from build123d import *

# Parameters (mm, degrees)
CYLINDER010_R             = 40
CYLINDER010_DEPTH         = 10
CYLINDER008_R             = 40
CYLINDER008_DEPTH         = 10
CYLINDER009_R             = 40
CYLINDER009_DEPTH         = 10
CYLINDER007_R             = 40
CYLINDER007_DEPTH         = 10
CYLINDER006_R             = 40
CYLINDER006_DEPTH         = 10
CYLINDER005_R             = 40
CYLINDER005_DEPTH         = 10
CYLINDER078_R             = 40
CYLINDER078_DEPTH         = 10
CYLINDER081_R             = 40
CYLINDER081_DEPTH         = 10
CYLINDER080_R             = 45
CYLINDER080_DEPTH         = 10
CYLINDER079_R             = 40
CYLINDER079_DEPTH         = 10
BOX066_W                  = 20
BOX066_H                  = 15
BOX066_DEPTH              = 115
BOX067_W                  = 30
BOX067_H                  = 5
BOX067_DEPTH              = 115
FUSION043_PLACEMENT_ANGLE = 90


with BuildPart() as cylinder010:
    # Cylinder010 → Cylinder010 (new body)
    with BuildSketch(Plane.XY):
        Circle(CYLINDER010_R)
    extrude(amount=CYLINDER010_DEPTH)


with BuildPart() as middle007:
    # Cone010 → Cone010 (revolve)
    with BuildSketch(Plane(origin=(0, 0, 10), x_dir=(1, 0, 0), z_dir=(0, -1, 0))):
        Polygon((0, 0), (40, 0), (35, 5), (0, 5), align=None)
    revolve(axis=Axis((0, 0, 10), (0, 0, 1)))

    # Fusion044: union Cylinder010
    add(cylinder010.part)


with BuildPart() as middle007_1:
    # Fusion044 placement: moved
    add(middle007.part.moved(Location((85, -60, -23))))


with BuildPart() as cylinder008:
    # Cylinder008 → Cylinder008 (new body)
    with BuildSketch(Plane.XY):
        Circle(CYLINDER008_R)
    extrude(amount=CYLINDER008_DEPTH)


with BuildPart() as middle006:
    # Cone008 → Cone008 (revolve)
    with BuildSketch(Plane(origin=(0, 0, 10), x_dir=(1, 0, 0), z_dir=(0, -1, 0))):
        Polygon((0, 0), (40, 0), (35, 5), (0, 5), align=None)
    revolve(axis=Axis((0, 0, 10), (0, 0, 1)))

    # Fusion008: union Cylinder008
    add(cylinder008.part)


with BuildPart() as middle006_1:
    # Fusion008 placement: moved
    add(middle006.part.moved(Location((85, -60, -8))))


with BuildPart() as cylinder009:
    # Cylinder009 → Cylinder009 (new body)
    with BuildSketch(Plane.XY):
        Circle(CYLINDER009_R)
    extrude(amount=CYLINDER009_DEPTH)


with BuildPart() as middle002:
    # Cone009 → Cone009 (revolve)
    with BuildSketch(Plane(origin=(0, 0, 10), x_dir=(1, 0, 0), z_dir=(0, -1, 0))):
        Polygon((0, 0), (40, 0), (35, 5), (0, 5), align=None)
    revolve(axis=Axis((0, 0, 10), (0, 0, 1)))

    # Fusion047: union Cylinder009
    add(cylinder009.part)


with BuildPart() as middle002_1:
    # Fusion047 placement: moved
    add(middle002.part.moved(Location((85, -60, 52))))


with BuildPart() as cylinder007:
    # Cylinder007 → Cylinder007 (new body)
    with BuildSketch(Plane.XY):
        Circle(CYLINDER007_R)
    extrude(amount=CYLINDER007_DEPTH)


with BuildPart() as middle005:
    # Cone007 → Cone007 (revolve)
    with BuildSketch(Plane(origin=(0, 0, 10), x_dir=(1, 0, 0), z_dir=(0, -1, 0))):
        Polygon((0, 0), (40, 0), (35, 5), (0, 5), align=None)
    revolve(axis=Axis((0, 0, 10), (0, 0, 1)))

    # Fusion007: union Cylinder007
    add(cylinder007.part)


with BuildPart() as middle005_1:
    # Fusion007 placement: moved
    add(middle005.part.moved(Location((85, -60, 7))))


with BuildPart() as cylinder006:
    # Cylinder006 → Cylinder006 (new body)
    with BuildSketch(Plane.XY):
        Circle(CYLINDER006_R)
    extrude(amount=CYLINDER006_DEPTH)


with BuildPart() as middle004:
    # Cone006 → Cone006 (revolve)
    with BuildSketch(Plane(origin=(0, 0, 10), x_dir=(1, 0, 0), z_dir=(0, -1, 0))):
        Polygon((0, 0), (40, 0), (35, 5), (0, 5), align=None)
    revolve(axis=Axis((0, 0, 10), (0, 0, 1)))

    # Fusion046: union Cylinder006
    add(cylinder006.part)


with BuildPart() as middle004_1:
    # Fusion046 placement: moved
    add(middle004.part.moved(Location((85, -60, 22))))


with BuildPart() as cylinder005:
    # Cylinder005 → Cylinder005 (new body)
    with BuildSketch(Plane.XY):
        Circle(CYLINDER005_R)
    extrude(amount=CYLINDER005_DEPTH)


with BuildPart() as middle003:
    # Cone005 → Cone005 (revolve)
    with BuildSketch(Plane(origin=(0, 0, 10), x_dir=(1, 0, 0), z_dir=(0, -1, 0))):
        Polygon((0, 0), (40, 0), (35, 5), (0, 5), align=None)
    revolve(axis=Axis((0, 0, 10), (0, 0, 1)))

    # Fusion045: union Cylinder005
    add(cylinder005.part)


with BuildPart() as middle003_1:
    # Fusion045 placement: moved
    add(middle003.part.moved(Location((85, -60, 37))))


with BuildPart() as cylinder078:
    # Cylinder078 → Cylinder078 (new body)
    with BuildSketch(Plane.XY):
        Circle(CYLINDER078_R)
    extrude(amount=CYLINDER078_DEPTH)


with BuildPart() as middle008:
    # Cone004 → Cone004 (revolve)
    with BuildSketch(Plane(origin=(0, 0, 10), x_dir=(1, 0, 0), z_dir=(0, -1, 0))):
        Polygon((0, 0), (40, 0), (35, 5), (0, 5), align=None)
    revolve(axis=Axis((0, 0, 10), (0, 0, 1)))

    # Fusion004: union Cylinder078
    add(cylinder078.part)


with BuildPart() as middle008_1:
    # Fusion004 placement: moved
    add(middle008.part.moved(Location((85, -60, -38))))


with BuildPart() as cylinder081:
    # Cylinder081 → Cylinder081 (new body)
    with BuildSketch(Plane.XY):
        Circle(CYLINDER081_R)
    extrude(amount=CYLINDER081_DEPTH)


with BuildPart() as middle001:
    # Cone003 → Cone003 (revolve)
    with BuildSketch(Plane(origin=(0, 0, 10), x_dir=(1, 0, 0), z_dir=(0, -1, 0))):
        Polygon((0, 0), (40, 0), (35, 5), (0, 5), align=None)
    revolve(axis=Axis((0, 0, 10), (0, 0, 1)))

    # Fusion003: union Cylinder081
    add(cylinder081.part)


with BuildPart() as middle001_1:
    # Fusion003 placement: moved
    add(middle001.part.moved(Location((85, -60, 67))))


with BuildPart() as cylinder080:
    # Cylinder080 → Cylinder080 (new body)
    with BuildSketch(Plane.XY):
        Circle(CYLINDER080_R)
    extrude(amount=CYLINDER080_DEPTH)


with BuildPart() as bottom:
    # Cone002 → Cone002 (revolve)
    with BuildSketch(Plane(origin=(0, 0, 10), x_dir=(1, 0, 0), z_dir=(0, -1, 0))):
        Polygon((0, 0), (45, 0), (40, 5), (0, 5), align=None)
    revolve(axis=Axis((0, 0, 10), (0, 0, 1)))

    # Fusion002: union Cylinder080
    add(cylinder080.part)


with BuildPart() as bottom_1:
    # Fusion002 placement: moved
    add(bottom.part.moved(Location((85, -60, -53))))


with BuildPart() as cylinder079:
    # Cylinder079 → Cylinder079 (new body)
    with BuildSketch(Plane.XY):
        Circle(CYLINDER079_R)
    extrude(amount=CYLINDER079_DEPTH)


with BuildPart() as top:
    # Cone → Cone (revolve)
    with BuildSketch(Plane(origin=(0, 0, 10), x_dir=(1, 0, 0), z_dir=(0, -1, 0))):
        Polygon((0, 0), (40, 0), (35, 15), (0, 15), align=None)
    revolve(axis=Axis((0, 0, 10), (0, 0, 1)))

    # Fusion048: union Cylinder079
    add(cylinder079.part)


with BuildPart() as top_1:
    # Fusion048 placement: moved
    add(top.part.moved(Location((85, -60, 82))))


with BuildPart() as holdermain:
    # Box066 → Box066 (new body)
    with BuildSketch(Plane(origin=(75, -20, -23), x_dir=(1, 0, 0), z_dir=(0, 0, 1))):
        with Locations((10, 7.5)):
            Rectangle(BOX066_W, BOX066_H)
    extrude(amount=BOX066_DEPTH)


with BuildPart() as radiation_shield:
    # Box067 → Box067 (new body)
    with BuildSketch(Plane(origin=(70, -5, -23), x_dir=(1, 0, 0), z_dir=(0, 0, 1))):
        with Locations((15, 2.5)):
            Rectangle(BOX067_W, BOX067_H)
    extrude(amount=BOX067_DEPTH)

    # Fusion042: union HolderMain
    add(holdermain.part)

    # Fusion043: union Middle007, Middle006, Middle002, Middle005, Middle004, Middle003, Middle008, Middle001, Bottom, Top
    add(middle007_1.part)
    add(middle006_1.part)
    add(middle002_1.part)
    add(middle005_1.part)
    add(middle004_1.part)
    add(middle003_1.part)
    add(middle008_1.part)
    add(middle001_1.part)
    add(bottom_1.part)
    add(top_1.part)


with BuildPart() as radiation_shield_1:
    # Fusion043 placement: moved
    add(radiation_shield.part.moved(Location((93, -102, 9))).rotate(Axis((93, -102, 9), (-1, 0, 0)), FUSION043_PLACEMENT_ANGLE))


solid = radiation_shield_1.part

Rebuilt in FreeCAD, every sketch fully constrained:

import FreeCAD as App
import Part
import Sketcher


def add_polygon(sketch, points):
    """Adds a closed chain of lines whose ends are joined by coincident constraints."""
    first, n = sketch.GeometryCount, len(points)
    for a, b in zip(points, points[1:] + points[:1]):
        sketch.addGeometry(Part.LineSegment(App.Vector(*a, 0), App.Vector(*b, 0)), False)
    for i in range(n):
        sketch.addConstraint(Sketcher.Constraint("Coincident", first + i, 2, first + (i + 1) % n, 1))

doc = App.newDocument("Part")
body = doc.addObject("PartDesign::Body", "Body")

# Sketch on XY plane
sketch1 = doc.addObject("Sketcher::SketchObject", "Sketch")
body.addObject(sketch1)
sketch1.AttachmentSupport = (doc.XY_Plane, [""])
sketch1.MapMode = "FlatFace"
sketch1.addGeometry(Part.Circle(App.Vector(0, 0, 0), App.Vector(0, 0, 1), 40), False)
sketch1.addConstraint(Sketcher.Constraint("Coincident", 0, 3, -1, 1))
sketch1.addConstraint(Sketcher.Constraint("Diameter", 0, 80.0))
pad1 = doc.addObject("PartDesign::Pad", "Pad")
body.addObject(pad1)
pad1.Profile = sketch1
pad1.Length = 10
body2 = doc.addObject("PartDesign::Body", "Body001")

# Sketch on XZ plane
sketch2 = doc.addObject("Sketcher::SketchObject", "Sketch001")
body2.addObject(sketch2)
sketch2.AttachmentSupport = (doc.getObject("XZ_Plane001"), [""])
sketch2.MapMode = "FlatFace"
add_polygon(sketch2, [(0, 10), (40, 10), (35, 15), (0, 15)])  # lines 0-3
sketch2.addConstraint(Sketcher.Constraint("Horizontal", 0))
sketch2.addConstraint(Sketcher.Constraint("Horizontal", 2))
sketch2.addConstraint(Sketcher.Constraint("Vertical", 3))
sketch2.addConstraint(Sketcher.Constraint("PointOnObject", 2, 2, -2))
sketch2.addConstraint(Sketcher.Constraint("DistanceX", 0, 1, 0, 2, 40.0))
sketch2.addConstraint(Sketcher.Constraint("DistanceX", 2, 2, 2, 1, 35.0))
sketch2.addConstraint(Sketcher.Constraint("DistanceY", 3, 2, 3, 1, 5.0))
sketch2.addConstraint(Sketcher.Constraint("DistanceY", -1, 1, 0, 2, 10.0))
revolution = doc.addObject("PartDesign::Revolution", "Revolution")
body2.addObject(revolution)
revolution.Profile = sketch2
revolution.ReferenceAxis = (sketch2, ["V_Axis"])
revolution.Angle = 360
doc.recompute()

boolean = doc.addObject("PartDesign::Boolean", "Boolean")
body2.addObject(boolean)
boolean.Type = "Fuse"
boolean.addObjects([body])
body3 = doc.addObject("PartDesign::Body", "Body002")
doc.recompute()

body2.Placement = App.Placement(App.Vector(85, -60, -23), App.Rotation(App.Vector(0, 0, 1), 0))
boolean2 = doc.addObject("PartDesign::Boolean", "Boolean001")
body3.addObject(boolean2)
boolean2.Type = "Fuse"
boolean2.addObjects([body2])
body4 = doc.addObject("PartDesign::Body", "Body003")

# Sketch on XY plane
sketch3 = doc.addObject("Sketcher::SketchObject", "Sketch002")
body4.addObject(sketch3)
sketch3.AttachmentSupport = (doc.getObject("XY_Plane003"), [""])
sketch3.MapMode = "FlatFace"
sketch3.addGeometry(Part.Circle(App.Vector(0, 0, 0), App.Vector(0, 0, 1), 40), False)
sketch3.addConstraint(Sketcher.Constraint("Coincident", 0, 3, -1, 1))
sketch3.addConstraint(Sketcher.Constraint("Diameter", 0, 80.0))
pad2 = doc.addObject("PartDesign::Pad", "Pad001")
body4.addObject(pad2)
pad2.Profile = sketch3
pad2.Length = 10
body5 = doc.addObject("PartDesign::Body", "Body004")

# Sketch on XZ plane
sketch4 = doc.addObject("Sketcher::SketchObject", "Sketch003")
body5.addObject(sketch4)
sketch4.AttachmentSupport = (doc.getObject("XZ_Plane004"), [""])
sketch4.MapMode = "FlatFace"
add_polygon(sketch4, [(0, 10), (40, 10), (35, 15), (0, 15)])  # lines 0-3
sketch4.addConstraint(Sketcher.Constraint("Horizontal", 0))
sketch4.addConstraint(Sketcher.Constraint("Horizontal", 2))
sketch4.addConstraint(Sketcher.Constraint("Vertical", 3))
sketch4.addConstraint(Sketcher.Constraint("PointOnObject", 2, 2, -2))
sketch4.addConstraint(Sketcher.Constraint("DistanceX", 0, 1, 0, 2, 40.0))
sketch4.addConstraint(Sketcher.Constraint("DistanceX", 2, 2, 2, 1, 35.0))
sketch4.addConstraint(Sketcher.Constraint("DistanceY", 3, 2, 3, 1, 5.0))
sketch4.addConstraint(Sketcher.Constraint("DistanceY", -1, 1, 0, 2, 10.0))
revolution2 = doc.addObject("PartDesign::Revolution", "Revolution001")
body5.addObject(revolution2)
revolution2.Profile = sketch4
revolution2.ReferenceAxis = (sketch4, ["V_Axis"])
revolution2.Angle = 360
doc.recompute()

boolean3 = doc.addObject("PartDesign::Boolean", "Boolean002")
body5.addObject(boolean3)
boolean3.Type = "Fuse"
boolean3.addObjects([body4])
body6 = doc.addObject("PartDesign::Body", "Body005")
doc.recompute()

body5.Placement = App.Placement(App.Vector(85, -60, -8), App.Rotation(App.Vector(0, 0, 1), 0))
boolean4 = doc.addObject("PartDesign::Boolean", "Boolean003")
body6.addObject(boolean4)
boolean4.Type = "Fuse"
boolean4.addObjects([body5])
body7 = doc.addObject("PartDesign::Body", "Body006")

# Sketch on XY plane
sketch5 = doc.addObject("Sketcher::SketchObject", "Sketch004")
body7.addObject(sketch5)
sketch5.AttachmentSupport = (doc.getObject("XY_Plane006"), [""])
sketch5.MapMode = "FlatFace"
sketch5.addGeometry(Part.Circle(App.Vector(0, 0, 0), App.Vector(0, 0, 1), 40), False)
sketch5.addConstraint(Sketcher.Constraint("Coincident", 0, 3, -1, 1))
sketch5.addConstraint(Sketcher.Constraint("Diameter", 0, 80.0))
pad3 = doc.addObject("PartDesign::Pad", "Pad002")
body7.addObject(pad3)
pad3.Profile = sketch5
pad3.Length = 10
body8 = doc.addObject("PartDesign::Body", "Body007")

# Sketch on XZ plane
sketch6 = doc.addObject("Sketcher::SketchObject", "Sketch005")
body8.addObject(sketch6)
sketch6.AttachmentSupport = (doc.getObject("XZ_Plane007"), [""])
sketch6.MapMode = "FlatFace"
add_polygon(sketch6, [(0, 10), (40, 10), (35, 15), (0, 15)])  # lines 0-3
sketch6.addConstraint(Sketcher.Constraint("Horizontal", 0))
sketch6.addConstraint(Sketcher.Constraint("Horizontal", 2))
sketch6.addConstraint(Sketcher.Constraint("Vertical", 3))
sketch6.addConstraint(Sketcher.Constraint("PointOnObject", 2, 2, -2))
sketch6.addConstraint(Sketcher.Constraint("DistanceX", 0, 1, 0, 2, 40.0))
sketch6.addConstraint(Sketcher.Constraint("DistanceX", 2, 2, 2, 1, 35.0))
sketch6.addConstraint(Sketcher.Constraint("DistanceY", 3, 2, 3, 1, 5.0))
sketch6.addConstraint(Sketcher.Constraint("DistanceY", -1, 1, 0, 2, 10.0))
revolution3 = doc.addObject("PartDesign::Revolution", "Revolution002")
body8.addObject(revolution3)
revolution3.Profile = sketch6
revolution3.ReferenceAxis = (sketch6, ["V_Axis"])
revolution3.Angle = 360
doc.recompute()

boolean5 = doc.addObject("PartDesign::Boolean", "Boolean004")
body8.addObject(boolean5)
boolean5.Type = "Fuse"
boolean5.addObjects([body7])
body9 = doc.addObject("PartDesign::Body", "Body008")
doc.recompute()

body8.Placement = App.Placement(App.Vector(85, -60, 52), App.Rotation(App.Vector(0, 0, 1), 0))
boolean6 = doc.addObject("PartDesign::Boolean", "Boolean005")
body9.addObject(boolean6)
boolean6.Type = "Fuse"
boolean6.addObjects([body8])
body10 = doc.addObject("PartDesign::Body", "Body009")

# Sketch on XY plane
sketch7 = doc.addObject("Sketcher::SketchObject", "Sketch006")
body10.addObject(sketch7)
sketch7.AttachmentSupport = (doc.getObject("XY_Plane009"), [""])
sketch7.MapMode = "FlatFace"
sketch7.addGeometry(Part.Circle(App.Vector(0, 0, 0), App.Vector(0, 0, 1), 40), False)
sketch7.addConstraint(Sketcher.Constraint("Coincident", 0, 3, -1, 1))
sketch7.addConstraint(Sketcher.Constraint("Diameter", 0, 80.0))
pad4 = doc.addObject("PartDesign::Pad", "Pad003")
body10.addObject(pad4)
pad4.Profile = sketch7
pad4.Length = 10
body11 = doc.addObject("PartDesign::Body", "Body010")

# Sketch on XZ plane
sketch8 = doc.addObject("Sketcher::SketchObject", "Sketch007")
body11.addObject(sketch8)
sketch8.AttachmentSupport = (doc.getObject("XZ_Plane010"), [""])
sketch8.MapMode = "FlatFace"
add_polygon(sketch8, [(0, 10), (40, 10), (35, 15), (0, 15)])  # lines 0-3
sketch8.addConstraint(Sketcher.Constraint("Horizontal", 0))
sketch8.addConstraint(Sketcher.Constraint("Horizontal", 2))
sketch8.addConstraint(Sketcher.Constraint("Vertical", 3))
sketch8.addConstraint(Sketcher.Constraint("PointOnObject", 2, 2, -2))
sketch8.addConstraint(Sketcher.Constraint("DistanceX", 0, 1, 0, 2, 40.0))
sketch8.addConstraint(Sketcher.Constraint("DistanceX", 2, 2, 2, 1, 35.0))
sketch8.addConstraint(Sketcher.Constraint("DistanceY", 3, 2, 3, 1, 5.0))
sketch8.addConstraint(Sketcher.Constraint("DistanceY", -1, 1, 0, 2, 10.0))
revolution4 = doc.addObject("PartDesign::Revolution", "Revolution003")
body11.addObject(revolution4)
revolution4.Profile = sketch8
revolution4.ReferenceAxis = (sketch8, ["V_Axis"])
revolution4.Angle = 360
doc.recompute()

boolean7 = doc.addObject("PartDesign::Boolean", "Boolean006")
body11.addObject(boolean7)
boolean7.Type = "Fuse"
boolean7.addObjects([body10])
body12 = doc.addObject("PartDesign::Body", "Body011")
doc.recompute()

body11.Placement = App.Placement(App.Vector(85, -60, 7), App.Rotation(App.Vector(0, 0, 1), 0))
boolean8 = doc.addObject("PartDesign::Boolean", "Boolean007")
body12.addObject(boolean8)
boolean8.Type = "Fuse"
boolean8.addObjects([body11])
body13 = doc.addObject("PartDesign::Body", "Body012")

# Sketch on XY plane
sketch9 = doc.addObject("Sketcher::SketchObject", "Sketch008")
body13.addObject(sketch9)
sketch9.AttachmentSupport = (doc.getObject("XY_Plane012"), [""])
sketch9.MapMode = "FlatFace"
sketch9.addGeometry(Part.Circle(App.Vector(0, 0, 0), App.Vector(0, 0, 1), 40), False)
sketch9.addConstraint(Sketcher.Constraint("Coincident", 0, 3, -1, 1))
sketch9.addConstraint(Sketcher.Constraint("Diameter", 0, 80.0))
pad5 = doc.addObject("PartDesign::Pad", "Pad004")
body13.addObject(pad5)
pad5.Profile = sketch9
pad5.Length = 10
body14 = doc.addObject("PartDesign::Body", "Body013")

# Sketch on XZ plane
sketch10 = doc.addObject("Sketcher::SketchObject", "Sketch009")
body14.addObject(sketch10)
sketch10.AttachmentSupport = (doc.getObject("XZ_Plane013"), [""])
sketch10.MapMode = "FlatFace"
add_polygon(sketch10, [(0, 10), (40, 10), (35, 15), (0, 15)])  # lines 0-3
sketch10.addConstraint(Sketcher.Constraint("Horizontal", 0))
sketch10.addConstraint(Sketcher.Constraint("Horizontal", 2))
sketch10.addConstraint(Sketcher.Constraint("Vertical", 3))
sketch10.addConstraint(Sketcher.Constraint("PointOnObject", 2, 2, -2))
sketch10.addConstraint(Sketcher.Constraint("DistanceX", 0, 1, 0, 2, 40.0))
sketch10.addConstraint(Sketcher.Constraint("DistanceX", 2, 2, 2, 1, 35.0))
sketch10.addConstraint(Sketcher.Constraint("DistanceY", 3, 2, 3, 1, 5.0))
sketch10.addConstraint(Sketcher.Constraint("DistanceY", -1, 1, 0, 2, 10.0))
revolution5 = doc.addObject("PartDesign::Revolution", "Revolution004")
body14.addObject(revolution5)
revolution5.Profile = sketch10
revolution5.ReferenceAxis = (sketch10, ["V_Axis"])
revolution5.Angle = 360
doc.recompute()

boolean9 = doc.addObject("PartDesign::Boolean", "Boolean008")
body14.addObject(boolean9)
boolean9.Type = "Fuse"
boolean9.addObjects([body13])
body15 = doc.addObject("PartDesign::Body", "Body014")
doc.recompute()

body14.Placement = App.Placement(App.Vector(85, -60, 22), App.Rotation(App.Vector(0, 0, 1), 0))
boolean10 = doc.addObject("PartDesign::Boolean", "Boolean009")
body15.addObject(boolean10)
boolean10.Type = "Fuse"
boolean10.addObjects([body14])
body16 = doc.addObject("PartDesign::Body", "Body015")

# Sketch on XY plane
sketch11 = doc.addObject("Sketcher::SketchObject", "Sketch010")
body16.addObject(sketch11)
sketch11.AttachmentSupport = (doc.getObject("XY_Plane015"), [""])
sketch11.MapMode = "FlatFace"
sketch11.addGeometry(Part.Circle(App.Vector(0, 0, 0), App.Vector(0, 0, 1), 40), False)
sketch11.addConstraint(Sketcher.Constraint("Coincident", 0, 3, -1, 1))
sketch11.addConstraint(Sketcher.Constraint("Diameter", 0, 80.0))
pad6 = doc.addObject("PartDesign::Pad", "Pad005")
body16.addObject(pad6)
pad6.Profile = sketch11
pad6.Length = 10
body17 = doc.addObject("PartDesign::Body", "Body016")

# Sketch on XZ plane
sketch12 = doc.addObject("Sketcher::SketchObject", "Sketch011")
body17.addObject(sketch12)
sketch12.AttachmentSupport = (doc.getObject("XZ_Plane016"), [""])
sketch12.MapMode = "FlatFace"
add_polygon(sketch12, [(0, 10), (40, 10), (35, 15), (0, 15)])  # lines 0-3
sketch12.addConstraint(Sketcher.Constraint("Horizontal", 0))
sketch12.addConstraint(Sketcher.Constraint("Horizontal", 2))
sketch12.addConstraint(Sketcher.Constraint("Vertical", 3))
sketch12.addConstraint(Sketcher.Constraint("PointOnObject", 2, 2, -2))
sketch12.addConstraint(Sketcher.Constraint("DistanceX", 0, 1, 0, 2, 40.0))
sketch12.addConstraint(Sketcher.Constraint("DistanceX", 2, 2, 2, 1, 35.0))
sketch12.addConstraint(Sketcher.Constraint("DistanceY", 3, 2, 3, 1, 5.0))
sketch12.addConstraint(Sketcher.Constraint("DistanceY", -1, 1, 0, 2, 10.0))
revolution6 = doc.addObject("PartDesign::Revolution", "Revolution005")
body17.addObject(revolution6)
revolution6.Profile = sketch12
revolution6.ReferenceAxis = (sketch12, ["V_Axis"])
revolution6.Angle = 360
doc.recompute()

boolean11 = doc.addObject("PartDesign::Boolean", "Boolean010")
body17.addObject(boolean11)
boolean11.Type = "Fuse"
boolean11.addObjects([body16])
body18 = doc.addObject("PartDesign::Body", "Body017")
doc.recompute()

body17.Placement = App.Placement(App.Vector(85, -60, 37), App.Rotation(App.Vector(0, 0, 1), 0))
boolean12 = doc.addObject("PartDesign::Boolean", "Boolean011")
body18.addObject(boolean12)
boolean12.Type = "Fuse"
boolean12.addObjects([body17])
body19 = doc.addObject("PartDesign::Body", "Body018")

# Sketch on XY plane
sketch13 = doc.addObject("Sketcher::SketchObject", "Sketch012")
body19.addObject(sketch13)
sketch13.AttachmentSupport = (doc.getObject("XY_Plane018"), [""])
sketch13.MapMode = "FlatFace"
sketch13.addGeometry(Part.Circle(App.Vector(0, 0, 0), App.Vector(0, 0, 1), 40), False)
sketch13.addConstraint(Sketcher.Constraint("Coincident", 0, 3, -1, 1))
sketch13.addConstraint(Sketcher.Constraint("Diameter", 0, 80.0))
pad7 = doc.addObject("PartDesign::Pad", "Pad006")
body19.addObject(pad7)
pad7.Profile = sketch13
pad7.Length = 10
body20 = doc.addObject("PartDesign::Body", "Body019")

# Sketch on XZ plane
sketch14 = doc.addObject("Sketcher::SketchObject", "Sketch013")
body20.addObject(sketch14)
sketch14.AttachmentSupport = (doc.getObject("XZ_Plane019"), [""])
sketch14.MapMode = "FlatFace"
add_polygon(sketch14, [(0, 10), (40, 10), (35, 15), (0, 15)])  # lines 0-3
sketch14.addConstraint(Sketcher.Constraint("Horizontal", 0))
sketch14.addConstraint(Sketcher.Constraint("Horizontal", 2))
sketch14.addConstraint(Sketcher.Constraint("Vertical", 3))
sketch14.addConstraint(Sketcher.Constraint("PointOnObject", 2, 2, -2))
sketch14.addConstraint(Sketcher.Constraint("DistanceX", 0, 1, 0, 2, 40.0))
sketch14.addConstraint(Sketcher.Constraint("DistanceX", 2, 2, 2, 1, 35.0))
sketch14.addConstraint(Sketcher.Constraint("DistanceY", 3, 2, 3, 1, 5.0))
sketch14.addConstraint(Sketcher.Constraint("DistanceY", -1, 1, 0, 2, 10.0))
revolution7 = doc.addObject("PartDesign::Revolution", "Revolution006")
body20.addObject(revolution7)
revolution7.Profile = sketch14
revolution7.ReferenceAxis = (sketch14, ["V_Axis"])
revolution7.Angle = 360
doc.recompute()

boolean13 = doc.addObject("PartDesign::Boolean", "Boolean012")
body20.addObject(boolean13)
boolean13.Type = "Fuse"
boolean13.addObjects([body19])
body21 = doc.addObject("PartDesign::Body", "Body020")
doc.recompute()

body20.Placement = App.Placement(App.Vector(85, -60, -38), App.Rotation(App.Vector(0, 0, 1), 0))
boolean14 = doc.addObject("PartDesign::Boolean", "Boolean013")
body21.addObject(boolean14)
boolean14.Type = "Fuse"
boolean14.addObjects([body20])
body22 = doc.addObject("PartDesign::Body", "Body021")

# Sketch on XY plane
sketch15 = doc.addObject("Sketcher::SketchObject", "Sketch014")
body22.addObject(sketch15)
sketch15.AttachmentSupport = (doc.getObject("XY_Plane021"), [""])
sketch15.MapMode = "FlatFace"
sketch15.addGeometry(Part.Circle(App.Vector(0, 0, 0), App.Vector(0, 0, 1), 40), False)
sketch15.addConstraint(Sketcher.Constraint("Coincident", 0, 3, -1, 1))
sketch15.addConstraint(Sketcher.Constraint("Diameter", 0, 80.0))
pad8 = doc.addObject("PartDesign::Pad", "Pad007")
body22.addObject(pad8)
pad8.Profile = sketch15
pad8.Length = 10
body23 = doc.addObject("PartDesign::Body", "Body022")

# Sketch on XZ plane
sketch16 = doc.addObject("Sketcher::SketchObject", "Sketch015")
body23.addObject(sketch16)
sketch16.AttachmentSupport = (doc.getObject("XZ_Plane022"), [""])
sketch16.MapMode = "FlatFace"
add_polygon(sketch16, [(0, 10), (40, 10), (35, 15), (0, 15)])  # lines 0-3
sketch16.addConstraint(Sketcher.Constraint("Horizontal", 0))
sketch16.addConstraint(Sketcher.Constraint("Horizontal", 2))
sketch16.addConstraint(Sketcher.Constraint("Vertical", 3))
sketch16.addConstraint(Sketcher.Constraint("PointOnObject", 2, 2, -2))
sketch16.addConstraint(Sketcher.Constraint("DistanceX", 0, 1, 0, 2, 40.0))
sketch16.addConstraint(Sketcher.Constraint("DistanceX", 2, 2, 2, 1, 35.0))
sketch16.addConstraint(Sketcher.Constraint("DistanceY", 3, 2, 3, 1, 5.0))
sketch16.addConstraint(Sketcher.Constraint("DistanceY", -1, 1, 0, 2, 10.0))
revolution8 = doc.addObject("PartDesign::Revolution", "Revolution007")
body23.addObject(revolution8)
revolution8.Profile = sketch16
revolution8.ReferenceAxis = (sketch16, ["V_Axis"])
revolution8.Angle = 360
doc.recompute()

boolean15 = doc.addObject("PartDesign::Boolean", "Boolean014")
body23.addObject(boolean15)
boolean15.Type = "Fuse"
boolean15.addObjects([body22])
body24 = doc.addObject("PartDesign::Body", "Body023")
doc.recompute()

body23.Placement = App.Placement(App.Vector(85, -60, 67), App.Rotation(App.Vector(0, 0, 1), 0))
boolean16 = doc.addObject("PartDesign::Boolean", "Boolean015")
body24.addObject(boolean16)
boolean16.Type = "Fuse"
boolean16.addObjects([body23])
body25 = doc.addObject("PartDesign::Body", "Body024")

# Sketch on XY plane
sketch17 = doc.addObject("Sketcher::SketchObject", "Sketch016")
body25.addObject(sketch17)
sketch17.AttachmentSupport = (doc.getObject("XY_Plane024"), [""])
sketch17.MapMode = "FlatFace"
sketch17.addGeometry(Part.Circle(App.Vector(0, 0, 0), App.Vector(0, 0, 1), 45), False)
sketch17.addConstraint(Sketcher.Constraint("Coincident", 0, 3, -1, 1))
sketch17.addConstraint(Sketcher.Constraint("Diameter", 0, 90.0))
pad9 = doc.addObject("PartDesign::Pad", "Pad008")
body25.addObject(pad9)
pad9.Profile = sketch17
pad9.Length = 10
body26 = doc.addObject("PartDesign::Body", "Body025")

# Sketch on XZ plane
sketch18 = doc.addObject("Sketcher::SketchObject", "Sketch017")
body26.addObject(sketch18)
sketch18.AttachmentSupport = (doc.getObject("XZ_Plane025"), [""])
sketch18.MapMode = "FlatFace"
add_polygon(sketch18, [(0, 10), (45, 10), (40, 15), (0, 15)])  # lines 0-3
sketch18.addConstraint(Sketcher.Constraint("Horizontal", 0))
sketch18.addConstraint(Sketcher.Constraint("Horizontal", 2))
sketch18.addConstraint(Sketcher.Constraint("Vertical", 3))
sketch18.addConstraint(Sketcher.Constraint("PointOnObject", 2, 2, -2))
sketch18.addConstraint(Sketcher.Constraint("DistanceX", 0, 1, 0, 2, 45.0))
sketch18.addConstraint(Sketcher.Constraint("DistanceX", 2, 2, 2, 1, 40.0))
sketch18.addConstraint(Sketcher.Constraint("DistanceY", 3, 2, 3, 1, 5.0))
sketch18.addConstraint(Sketcher.Constraint("DistanceY", -1, 1, 0, 2, 10.0))
revolution9 = doc.addObject("PartDesign::Revolution", "Revolution008")
body26.addObject(revolution9)
revolution9.Profile = sketch18
revolution9.ReferenceAxis = (sketch18, ["V_Axis"])
revolution9.Angle = 360
doc.recompute()

boolean17 = doc.addObject("PartDesign::Boolean", "Boolean016")
body26.addObject(boolean17)
boolean17.Type = "Fuse"
boolean17.addObjects([body25])
body27 = doc.addObject("PartDesign::Body", "Body026")
doc.recompute()

body26.Placement = App.Placement(App.Vector(85, -60, -53), App.Rotation(App.Vector(0, 0, 1), 0))
boolean18 = doc.addObject("PartDesign::Boolean", "Boolean017")
body27.addObject(boolean18)
boolean18.Type = "Fuse"
boolean18.addObjects([body26])
body28 = doc.addObject("PartDesign::Body", "Body027")

# Sketch on XY plane
sketch19 = doc.addObject("Sketcher::SketchObject", "Sketch018")
body28.addObject(sketch19)
sketch19.AttachmentSupport = (doc.getObject("XY_Plane027"), [""])
sketch19.MapMode = "FlatFace"
sketch19.addGeometry(Part.Circle(App.Vector(0, 0, 0), App.Vector(0, 0, 1), 40), False)
sketch19.addConstraint(Sketcher.Constraint("Coincident", 0, 3, -1, 1))
sketch19.addConstraint(Sketcher.Constraint("Diameter", 0, 80.0))
pad10 = doc.addObject("PartDesign::Pad", "Pad009")
body28.addObject(pad10)
pad10.Profile = sketch19
pad10.Length = 10
body29 = doc.addObject("PartDesign::Body", "Body028")

# Sketch on XZ plane
sketch20 = doc.addObject("Sketcher::SketchObject", "Sketch019")
body29.addObject(sketch20)
sketch20.AttachmentSupport = (doc.getObject("XZ_Plane028"), [""])
sketch20.MapMode = "FlatFace"
add_polygon(sketch20, [(0, 10), (40, 10), (35, 25), (0, 25)])  # lines 0-3
sketch20.addConstraint(Sketcher.Constraint("Horizontal", 0))
sketch20.addConstraint(Sketcher.Constraint("Horizontal", 2))
sketch20.addConstraint(Sketcher.Constraint("Vertical", 3))
sketch20.addConstraint(Sketcher.Constraint("PointOnObject", 2, 2, -2))
sketch20.addConstraint(Sketcher.Constraint("DistanceX", 0, 1, 0, 2, 40.0))
sketch20.addConstraint(Sketcher.Constraint("DistanceX", 2, 2, 2, 1, 35.0))
sketch20.addConstraint(Sketcher.Constraint("DistanceY", 3, 2, 3, 1, 15.0))
sketch20.addConstraint(Sketcher.Constraint("DistanceY", -1, 1, 0, 2, 10.0))
revolution10 = doc.addObject("PartDesign::Revolution", "Revolution009")
body29.addObject(revolution10)
revolution10.Profile = sketch20
revolution10.ReferenceAxis = (sketch20, ["V_Axis"])
revolution10.Angle = 360
doc.recompute()

boolean19 = doc.addObject("PartDesign::Boolean", "Boolean018")
body29.addObject(boolean19)
boolean19.Type = "Fuse"
boolean19.addObjects([body28])
body30 = doc.addObject("PartDesign::Body", "Body029")
doc.recompute()

body29.Placement = App.Placement(App.Vector(85, -60, 82), App.Rotation(App.Vector(0, 0, 1), 0))
boolean20 = doc.addObject("PartDesign::Boolean", "Boolean019")
body30.addObject(boolean20)
boolean20.Type = "Fuse"
boolean20.addObjects([body29])
body31 = doc.addObject("PartDesign::Body", "Body030")

# Sketch on XY plane
sketch21 = doc.addObject("Sketcher::SketchObject", "Sketch020")
body31.addObject(sketch21)
sketch21.AttachmentSupport = (doc.getObject("XY_Plane030"), [""])
sketch21.MapMode = "FlatFace"
sketch21.AttachmentOffset = App.Placement(App.Vector(0, 0, -23), App.Rotation())
add_polygon(sketch21, [(75, -5), (75, -20), (95, -20), (95, -5)])  # lines 0-3
sketch21.addConstraint(Sketcher.Constraint("Vertical", 0))
sketch21.addConstraint(Sketcher.Constraint("Horizontal", 1))
sketch21.addConstraint(Sketcher.Constraint("Vertical", 2))
sketch21.addConstraint(Sketcher.Constraint("Horizontal", 3))
sketch21.addConstraint(Sketcher.Constraint("DistanceX", 1, 1, 1, 2, 20.0))
sketch21.addConstraint(Sketcher.Constraint("DistanceY", 0, 2, 0, 1, 15.0))
sketch21.addConstraint(Sketcher.Constraint("DistanceX", -1, 1, 0, 2, 75.0))
sketch21.addConstraint(Sketcher.Constraint("DistanceY", 0, 2, -1, 1, 20.0))
pad11 = doc.addObject("PartDesign::Pad", "Pad010")
body31.addObject(pad11)
pad11.Profile = sketch21
pad11.Length = 115
body32 = doc.addObject("PartDesign::Body", "Body031")
body32.AllowCompound = True

# Sketch on XY plane
sketch22 = doc.addObject("Sketcher::SketchObject", "Sketch021")
body32.addObject(sketch22)
sketch22.AttachmentSupport = (doc.getObject("XY_Plane031"), [""])
sketch22.MapMode = "FlatFace"
sketch22.AttachmentOffset = App.Placement(App.Vector(0, 0, -23), App.Rotation())
add_polygon(sketch22, [(70, 0), (70, -5), (100, -5), (100, 0)])  # lines 0-3
sketch22.addConstraint(Sketcher.Constraint("Vertical", 0))
sketch22.addConstraint(Sketcher.Constraint("Horizontal", 1))
sketch22.addConstraint(Sketcher.Constraint("Vertical", 2))
sketch22.addConstraint(Sketcher.Constraint("Horizontal", 3))
sketch22.addConstraint(Sketcher.Constraint("PointOnObject", 2, 2, -1))
sketch22.addConstraint(Sketcher.Constraint("DistanceX", 1, 1, 1, 2, 30.0))
sketch22.addConstraint(Sketcher.Constraint("DistanceY", 0, 2, 0, 1, 5.0))
sketch22.addConstraint(Sketcher.Constraint("DistanceX", -1, 1, 0, 2, 70.0))
pad12 = doc.addObject("PartDesign::Pad", "Pad011")
body32.addObject(pad12)
pad12.Profile = sketch22
pad12.Length = 115
doc.recompute()

boolean21 = doc.addObject("PartDesign::Boolean", "Boolean020")
body32.addObject(boolean21)
boolean21.Type = "Fuse"
boolean21.addObjects([body31])
doc.recompute()

boolean22 = doc.addObject("PartDesign::Boolean", "Boolean021")
body32.addObject(boolean22)
boolean22.Type = "Fuse"
boolean22.addObjects([body3])
doc.recompute()

boolean23 = doc.addObject("PartDesign::Boolean", "Boolean022")
body32.addObject(boolean23)
boolean23.Type = "Fuse"
boolean23.addObjects([body6])
doc.recompute()

boolean24 = doc.addObject("PartDesign::Boolean", "Boolean023")
body32.addObject(boolean24)
boolean24.Type = "Fuse"
boolean24.addObjects([body9])
doc.recompute()

boolean25 = doc.addObject("PartDesign::Boolean", "Boolean024")
body32.addObject(boolean25)
boolean25.Type = "Fuse"
boolean25.addObjects([body12])
doc.recompute()

boolean26 = doc.addObject("PartDesign::Boolean", "Boolean025")
body32.addObject(boolean26)
boolean26.Type = "Fuse"
boolean26.addObjects([body15])
doc.recompute()

boolean27 = doc.addObject("PartDesign::Boolean", "Boolean026")
body32.addObject(boolean27)
boolean27.Type = "Fuse"
boolean27.addObjects([body18])
doc.recompute()

boolean28 = doc.addObject("PartDesign::Boolean", "Boolean027")
body32.addObject(boolean28)
boolean28.Type = "Fuse"
boolean28.addObjects([body21])
doc.recompute()

boolean29 = doc.addObject("PartDesign::Boolean", "Boolean028")
body32.addObject(boolean29)
boolean29.Type = "Fuse"
boolean29.addObjects([body24])
doc.recompute()

boolean30 = doc.addObject("PartDesign::Boolean", "Boolean029")
body32.addObject(boolean30)
boolean30.Type = "Fuse"
boolean30.addObjects([body27])
doc.recompute()

boolean31 = doc.addObject("PartDesign::Boolean", "Boolean030")
body32.addObject(boolean31)
boolean31.Type = "Fuse"
boolean31.addObjects([body30])
body33 = doc.addObject("PartDesign::Body", "Body032")
body33.AllowCompound = True
doc.recompute()

body32.Placement = App.Placement(App.Vector(93, -102, 9), App.Rotation(App.Vector(-1, 0, 0), 90))
boolean32 = doc.addObject("PartDesign::Boolean", "Boolean031")
body33.addObject(boolean32)
boolean32.Type = "Fuse"
boolean32.addObjects([body32])

doc.recompute()
